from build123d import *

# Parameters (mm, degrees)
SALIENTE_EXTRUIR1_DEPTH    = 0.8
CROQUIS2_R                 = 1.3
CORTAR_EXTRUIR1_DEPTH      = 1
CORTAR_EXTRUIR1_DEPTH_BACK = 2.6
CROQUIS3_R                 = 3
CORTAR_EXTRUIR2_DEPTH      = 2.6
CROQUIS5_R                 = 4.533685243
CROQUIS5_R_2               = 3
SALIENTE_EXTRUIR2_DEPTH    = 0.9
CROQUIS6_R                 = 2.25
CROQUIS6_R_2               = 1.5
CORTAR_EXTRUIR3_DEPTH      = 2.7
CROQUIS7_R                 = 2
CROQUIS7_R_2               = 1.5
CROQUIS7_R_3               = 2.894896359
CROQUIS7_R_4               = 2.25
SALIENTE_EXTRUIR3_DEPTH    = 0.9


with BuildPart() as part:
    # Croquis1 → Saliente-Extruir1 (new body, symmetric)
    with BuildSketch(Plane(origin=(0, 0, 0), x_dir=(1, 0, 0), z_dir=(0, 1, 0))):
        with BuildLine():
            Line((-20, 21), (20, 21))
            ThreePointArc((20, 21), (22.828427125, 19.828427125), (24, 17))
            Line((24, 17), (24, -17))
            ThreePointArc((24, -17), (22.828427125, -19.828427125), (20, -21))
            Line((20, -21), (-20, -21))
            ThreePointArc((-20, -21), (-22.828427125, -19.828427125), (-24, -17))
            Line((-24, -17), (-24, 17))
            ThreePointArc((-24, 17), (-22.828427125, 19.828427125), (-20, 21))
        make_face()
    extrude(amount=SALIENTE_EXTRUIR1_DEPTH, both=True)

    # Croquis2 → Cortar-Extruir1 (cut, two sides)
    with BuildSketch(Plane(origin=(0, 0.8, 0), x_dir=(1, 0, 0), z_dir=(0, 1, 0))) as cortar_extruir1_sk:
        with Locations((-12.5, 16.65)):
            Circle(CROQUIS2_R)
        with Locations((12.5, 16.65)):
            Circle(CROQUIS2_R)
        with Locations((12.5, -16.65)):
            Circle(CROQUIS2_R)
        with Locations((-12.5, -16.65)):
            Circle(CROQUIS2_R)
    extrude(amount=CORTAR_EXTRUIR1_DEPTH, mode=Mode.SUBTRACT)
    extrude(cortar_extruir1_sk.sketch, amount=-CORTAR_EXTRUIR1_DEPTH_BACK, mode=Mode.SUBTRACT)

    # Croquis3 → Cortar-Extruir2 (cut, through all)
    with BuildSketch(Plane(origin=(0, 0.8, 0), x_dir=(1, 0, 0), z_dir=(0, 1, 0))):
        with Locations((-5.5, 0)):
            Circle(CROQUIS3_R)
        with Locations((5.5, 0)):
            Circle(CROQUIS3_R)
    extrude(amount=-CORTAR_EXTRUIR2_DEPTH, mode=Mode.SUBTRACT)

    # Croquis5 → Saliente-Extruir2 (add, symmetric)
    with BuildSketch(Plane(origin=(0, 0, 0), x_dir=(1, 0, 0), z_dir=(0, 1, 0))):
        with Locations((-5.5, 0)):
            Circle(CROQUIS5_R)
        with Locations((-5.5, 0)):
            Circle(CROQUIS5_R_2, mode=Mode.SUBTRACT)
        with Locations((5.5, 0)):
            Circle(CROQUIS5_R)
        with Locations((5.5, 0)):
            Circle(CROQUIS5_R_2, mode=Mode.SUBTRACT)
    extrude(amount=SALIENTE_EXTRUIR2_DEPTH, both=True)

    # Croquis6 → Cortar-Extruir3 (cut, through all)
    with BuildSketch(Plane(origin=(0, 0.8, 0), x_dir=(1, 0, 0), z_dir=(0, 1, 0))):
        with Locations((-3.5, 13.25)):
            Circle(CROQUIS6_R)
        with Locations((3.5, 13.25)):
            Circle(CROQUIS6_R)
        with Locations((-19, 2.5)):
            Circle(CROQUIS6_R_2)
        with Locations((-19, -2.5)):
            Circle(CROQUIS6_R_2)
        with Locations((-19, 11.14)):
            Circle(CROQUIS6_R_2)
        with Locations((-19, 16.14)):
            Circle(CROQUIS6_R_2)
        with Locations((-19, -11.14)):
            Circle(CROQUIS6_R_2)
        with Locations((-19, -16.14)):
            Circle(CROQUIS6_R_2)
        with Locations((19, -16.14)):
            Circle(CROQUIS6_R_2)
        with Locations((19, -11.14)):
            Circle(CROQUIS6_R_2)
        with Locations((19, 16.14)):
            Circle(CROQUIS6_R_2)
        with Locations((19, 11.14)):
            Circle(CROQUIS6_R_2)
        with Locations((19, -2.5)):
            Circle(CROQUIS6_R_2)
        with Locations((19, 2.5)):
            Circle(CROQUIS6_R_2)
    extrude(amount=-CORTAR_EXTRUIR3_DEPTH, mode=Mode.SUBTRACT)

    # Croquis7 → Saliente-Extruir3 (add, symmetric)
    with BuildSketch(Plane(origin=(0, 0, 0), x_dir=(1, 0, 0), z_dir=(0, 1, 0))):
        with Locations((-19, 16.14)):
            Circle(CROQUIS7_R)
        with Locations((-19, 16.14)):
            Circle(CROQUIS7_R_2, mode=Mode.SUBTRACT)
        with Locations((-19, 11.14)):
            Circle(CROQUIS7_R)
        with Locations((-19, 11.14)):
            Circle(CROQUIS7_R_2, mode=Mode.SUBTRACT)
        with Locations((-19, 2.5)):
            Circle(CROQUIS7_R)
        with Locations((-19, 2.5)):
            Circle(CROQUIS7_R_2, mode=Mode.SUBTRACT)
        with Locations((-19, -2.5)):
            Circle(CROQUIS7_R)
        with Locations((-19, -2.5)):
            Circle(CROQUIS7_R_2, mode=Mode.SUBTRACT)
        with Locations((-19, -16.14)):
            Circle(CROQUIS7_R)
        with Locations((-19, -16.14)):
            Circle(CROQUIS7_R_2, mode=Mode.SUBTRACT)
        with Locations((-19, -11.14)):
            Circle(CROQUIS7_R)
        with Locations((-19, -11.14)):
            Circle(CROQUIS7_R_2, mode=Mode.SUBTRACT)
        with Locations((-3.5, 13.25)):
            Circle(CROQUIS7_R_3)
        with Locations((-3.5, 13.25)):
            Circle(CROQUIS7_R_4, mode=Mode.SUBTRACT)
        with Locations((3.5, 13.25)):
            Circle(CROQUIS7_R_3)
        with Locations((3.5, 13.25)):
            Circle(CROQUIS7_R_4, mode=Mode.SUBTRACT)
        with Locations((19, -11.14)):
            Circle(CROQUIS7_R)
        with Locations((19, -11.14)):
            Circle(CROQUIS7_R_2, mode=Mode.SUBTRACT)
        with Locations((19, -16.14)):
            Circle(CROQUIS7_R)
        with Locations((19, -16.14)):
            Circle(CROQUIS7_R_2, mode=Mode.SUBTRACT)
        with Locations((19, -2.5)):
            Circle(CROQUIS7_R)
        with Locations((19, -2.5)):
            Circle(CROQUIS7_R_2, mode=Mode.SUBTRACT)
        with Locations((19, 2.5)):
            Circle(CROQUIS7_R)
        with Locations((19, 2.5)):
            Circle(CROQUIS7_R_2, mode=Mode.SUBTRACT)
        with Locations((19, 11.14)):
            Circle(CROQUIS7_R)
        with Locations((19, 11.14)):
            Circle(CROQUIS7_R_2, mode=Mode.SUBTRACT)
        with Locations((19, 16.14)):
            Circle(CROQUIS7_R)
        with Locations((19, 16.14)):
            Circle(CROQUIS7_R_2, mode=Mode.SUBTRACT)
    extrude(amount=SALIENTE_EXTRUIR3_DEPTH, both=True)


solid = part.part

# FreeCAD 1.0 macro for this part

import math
import FreeCAD as App
import Part
import Sketcher
Q = App.Units.Quantity

doc = App.newDocument("Part")
params = doc.addObject("Spreadsheet::Sheet", "Params")
for row, (alias, value) in enumerate([
    ("sketch1_radius", "4 mm"),
    ("sketch1_width", "40 mm"),
    ("sketch1_height", "34 mm"),
    ("pad1_length", "1.6 mm"),
    ("sketch2_diameter", "2.6 mm"),
    ("sketch3_diameter", "6 mm"),
    ("sketch4_diameter", "6 mm"),
    ("pad2_length", "1.8 mm"),
    ("sketch5_diameter", "3 mm"),
    ("sketch5_diameter2", "4.5 mm"),
    ("sketch6_diameter", "4 mm"),
    ("sketch6_diameter2", "3 mm"),
    ("sketch6_diameter3", "4.5 mm"),
    ("pad3_length", "1.8 mm"),
], start=1):
    params.set(f"A{row}", alias)
    params.set(f"B{row}", "=" + value)
    params.setAlias(f"B{row}", alias)

body = doc.addObject("PartDesign::Body", "Body")

sketch1 = body.newObject("Sketcher::SketchObject", "Sketch")
sketch1.AttachmentSupport = (doc.getObject("XZ_Plane"), [""])
sketch1.MapMode = "FlatFace"
sketch1.addGeometry(Part.LineSegment(App.Vector(20, -21, 0), App.Vector(-20, -21, 0)), False)
sketch1.addGeometry(Part.ArcOfCircle(Part.Circle(App.Vector(-20, -17, 0), App.Vector(0, 0, 1), 4), math.radians(180), math.radians(270)), False)
sketch1.addGeometry(Part.LineSegment(App.Vector(-24, -17, 0), App.Vector(-24, 17, 0)), False)
sketch1.addGeometry(Part.ArcOfCircle(Part.Circle(App.Vector(-20, 17, 0), App.Vector(0, 0, 1), 4), math.radians(90), math.radians(180)), False)
sketch1.addGeometry(Part.LineSegment(App.Vector(-20, 21, 0), App.Vector(20, 21, 0)), False)
sketch1.addGeometry(Part.ArcOfCircle(Part.Circle(App.Vector(20, 17, 0), App.Vector(0, 0, 1), 4), math.radians(0), math.radians(90)), False)
sketch1.addGeometry(Part.LineSegment(App.Vector(24, 17, 0), App.Vector(24, -17, 0)), False)
sketch1.addGeometry(Part.ArcOfCircle(Part.Circle(App.Vector(20, -17, 0), App.Vector(0, 0, 1), 4), math.radians(-90), math.radians(0)), False)
sketch1.addConstraint(Sketcher.Constraint("Tangent", 0, 2, 1, 2))
sketch1.addConstraint(Sketcher.Constraint("Tangent", 1, 1, 2, 1))
sketch1.addConstraint(Sketcher.Constraint("Tangent", 2, 2, 3, 2))
sketch1.addConstraint(Sketcher.Constraint("Tangent", 3, 1, 4, 1))
sketch1.addConstraint(Sketcher.Constraint("Tangent", 4, 2, 5, 2))
sketch1.addConstraint(Sketcher.Constraint("Tangent", 5, 1, 6, 1))
sketch1.addConstraint(Sketcher.Constraint("Tangent", 6, 2, 7, 2))
sketch1.addConstraint(Sketcher.Constraint("Tangent", 7, 1, 0, 1))
sketch1.addConstraint(Sketcher.Constraint("Horizontal", 0))
sketch1.addConstraint(Sketcher.Constraint("Vertical", 2))
sketch1.addConstraint(Sketcher.Constraint("Horizontal", 4))
sketch1.addConstraint(Sketcher.Constraint("Vertical", 6))
sketch1.addConstraint(Sketcher.Constraint("Equal", 1, 3))
sketch1.addConstraint(Sketcher.Constraint("Equal", 3, 5))
sketch1.addConstraint(Sketcher.Constraint("Equal", 5, 7))
sketch1.addConstraint(Sketcher.Constraint("Symmetric", 1, 3, 5, 3, -1, 1))
sketch1.addConstraint(Sketcher.Constraint("Radius", 1, Q("4 mm")))
sketch1.addConstraint(Sketcher.Constraint("DistanceX", 0, 2, 0, 1, Q("40 mm")))
sketch1.addConstraint(Sketcher.Constraint("DistanceY", 2, 1, 2, 2, Q("34 mm")))
sketch1.setExpression("Constraints[16]", "Params.sketch1_radius")
sketch1.setExpression("Constraints[17]", "Params.sketch1_width")
sketch1.setExpression("Constraints[18]", "Params.sketch1_height")
pad1 = body.newObject("PartDesign::Pad", "Pad")
pad1.Profile = sketch1
pad1.setExpression("Length", "Params.pad1_length")
pad1.Midplane = True

sketch2 = body.newObject("Sketcher::SketchObject", "Sketch001")
sketch2.AttachmentSupport = (doc.getObject("XZ_Plane"), [""])
sketch2.MapMode = "FlatFace"
sketch2.AttachmentOffset = App.Placement(App.Vector(0, 0, -0.8), App.Rotation())
sketch2.addGeometry(Part.Circle(App.Vector(-12.5, -16.6, 0), App.Vector(0, 0, 1), 1.3), False)
sketch2.addGeometry(Part.Circle(App.Vector(12.5, -16.6, 0), App.Vector(0, 0, 1), 1.3), False)
sketch2.addGeometry(Part.Circle(App.Vector(12.5, 16.6, 0), App.Vector(0, 0, 1), 1.3), False)
sketch2.addGeometry(Part.Circle(App.Vector(-12.5, 16.6, 0), App.Vector(0, 0, 1), 1.3), False)
sketch2.addConstraint(Sketcher.Constraint("Equal", 0, 1))
sketch2.addConstraint(Sketcher.Constraint("Equal", 1, 2))
sketch2.addConstraint(Sketcher.Constraint("Equal", 2, 3))
sketch2.addConstraint(Sketcher.Constraint("Symmetric", 0, 3, 2, 3, -1, 1))
sketch2.addConstraint(Sketcher.Constraint("Symmetric", 1, 3, 3, 3, -1, 1))
sketch2.addConstraint(Sketcher.Constraint("Symmetric", 0, 3, 1, 3, -2))
sketch2.addConstraint(Sketcher.Constraint("Diameter", 0, Q("2.6 mm")))
sketch2.addConstraint(Sketcher.Constraint("DistanceX", 0, 3, 1, 3, Q("25 mm")))
sketch2.addConstraint(Sketcher.Constraint("DistanceY", 1, 3, 2, 3, Q("33.3 mm")))
sketch2.setExpression("Constraints[6]", "Params.sketch2_diameter")
pocket1 = body.newObject("PartDesign::Pocket", "Pocket")
pocket1.Profile = sketch2
pocket1.Type = "ThroughAll"
pocket1.Midplane = True

sketch3 = body.newObject("Sketcher::SketchObject", "Sketch002")
sketch3.AttachmentSupport = (doc.getObject("XZ_Plane"), [""])
sketch3.MapMode = "FlatFace"
sketch3.AttachmentOffset = App.Placement(App.Vector(0, 0, -0.8), App.Rotation())
sketch3.addGeometry(Part.Circle(App.Vector(-5.5, 0, 0), App.Vector(0, 0, 1), 3), False)
sketch3.addGeometry(Part.Circle(App.Vector(5.5, 0, 0), App.Vector(0, 0, 1), 3), False)
sketch3.addConstraint(Sketcher.Constraint("Equal", 0, 1))
sketch3.addConstraint(Sketcher.Constraint("Symmetric", 0, 3, 1, 3, -1, 1))
sketch3.addConstraint(Sketcher.Constraint("PointOnObject", 0, 3, -1))
sketch3.addConstraint(Sketcher.Constraint("Diameter", 0, Q("6 mm")))
sketch3.addConstraint(Sketcher.Constraint("DistanceX", 0, 3, 1, 3, Q("11 mm")))
sketch3.setExpression("Constraints[3]", "Params.sketch3_diameter")
pocket2 = body.newObject("PartDesign::Pocket", "Pocket001")
pocket2.Profile = sketch3
pocket2.Type = "ThroughAll"
pocket2.Reversed = True

sketch4 = body.newObject("Sketcher::SketchObject", "Sketch003")
sketch4.AttachmentSupport = (doc.getObject("XZ_Plane"), [""])
sketch4.MapMode = "FlatFace"
sketch4.addGeometry(Part.Circle(App.Vector(-5.5, 0, 0), App.Vector(0, 0, 1), 4.5), False)
sketch4.addGeometry(Part.Circle(App.Vector(-5.5, 0, 0), App.Vector(0, 0, 1), 3), False)
sketch4.addGeometry(Part.Circle(App.Vector(5.5, 0, 0), App.Vector(0, 0, 1), 4.5), False)
sketch4.addGeometry(Part.Circle(App.Vector(5.5, 0, 0), App.Vector(0, 0, 1), 3), False)
sketch4.addConstraint(Sketcher.Constraint("Coincident", 1, 3, 0, 3))
sketch4.addConstraint(Sketcher.Constraint("Coincident", 3, 3, 2, 3))
sketch4.addConstraint(Sketcher.Constraint("Equal", 0, 2))
sketch4.addConstraint(Sketcher.Constraint("Equal", 1, 3))
sketch4.addConstraint(Sketcher.Constraint("Symmetric", 0, 3, 2, 3, -1, 1))
sketch4.addConstraint(Sketcher.Constraint("PointOnObject", 0, 3, -1))
sketch4.addConstraint(Sketcher.Constraint("Diameter", 1, Q("6 mm")))
sketch4.addConstraint(Sketcher.Constraint("DistanceX", 0, 3, 2, 3, Q("11 mm")))
sketch4.addConstraint(Sketcher.Constraint("Diameter", 0, Q("9.06737 mm")))
sketch4.setExpression("Constraints[6]", "Params.sketch4_diameter")
pad2 = body.newObject("PartDesign::Pad", "Pad001")
pad2.Profile = sketch4
pad2.setExpression("Length", "Params.pad2_length")
pad2.Midplane = True

sketch5 = body.newObject("Sketcher::SketchObject", "Sketch004")
sketch5.AttachmentSupport = (doc.getObject("XZ_Plane"), [""])
sketch5.MapMode = "FlatFace"
sketch5.AttachmentOffset = App.Placement(App.Vector(0, 0, -0.8), App.Rotation())
sketch5.addGeometry(Part.Circle(App.Vector(-3.5, -13.2, 0), App.Vector(0, 0, 1), 2.2), False)
sketch5.addGeometry(Part.Circle(App.Vector(3.5, -13.2, 0), App.Vector(0, 0, 1), 2.2), False)
sketch5.addGeometry(Part.Circle(App.Vector(-19, -2.5, 0), App.Vector(0, 0, 1), 1.5), False)
sketch5.addGeometry(Part.Circle(App.Vector(-19, 2.5, 0), App.Vector(0, 0, 1), 1.5), False)
sketch5.addGeometry(Part.Circle(App.Vector(-19, -11.1, 0), App.Vector(0, 0, 1), 1.5), False)
sketch5.addGeometry(Part.Circle(App.Vector(-19, -16.1, 0), App.Vector(0, 0, 1), 1.5), False)
sketch5.addGeometry(Part.Circle(App.Vector(-19, 11.1, 0), App.Vector(0, 0, 1), 1.5), False)
sketch5.addGeometry(Part.Circle(App.Vector(-19, 16.1, 0), App.Vector(0, 0, 1), 1.5), False)
sketch5.addGeometry(Part.Circle(App.Vector(19, 16.1, 0), App.Vector(0, 0, 1), 1.5), False)
sketch5.addGeometry(Part.Circle(App.Vector(19, 11.1, 0), App.Vector(0, 0, 1), 1.5), False)
sketch5.addGeometry(Part.Circle(App.Vector(19, -16.1, 0), App.Vector(0, 0, 1), 1.5), False)
sketch5.addGeometry(Part.Circle(App.Vector(19, -11.1, 0), App.Vector(0, 0, 1), 1.5), False)
sketch5.addGeometry(Part.Circle(App.Vector(19, 2.5, 0), App.Vector(0, 0, 1), 1.5), False)
sketch5.addGeometry(Part.Circle(App.Vector(19, -2.5, 0), App.Vector(0, 0, 1), 1.5), False)
sketch5.addConstraint(Sketcher.Constraint("Equal", 0, 1))
sketch5.addConstraint(Sketcher.Constraint("Equal", 2, 3))
sketch5.addConstraint(Sketcher.Constraint("Equal", 3, 4))
sketch5.addConstraint(Sketcher.Constraint("Equal", 4, 5))
sketch5.addConstraint(Sketcher.Constraint("Equal", 5, 6))
sketch5.addConstraint(Sketcher.Constraint("Equal", 6, 7))
sketch5.addConstraint(Sketcher.Constraint("Equal", 7, 8))
sketch5.addConstraint(Sketcher.Constraint("Equal", 8, 9))
sketch5.addConstraint(Sketcher.Constraint("Equal", 9, 10))
sketch5.addConstraint(Sketcher.Constraint("Equal", 10, 11))
sketch5.addConstraint(Sketcher.Constraint("Equal", 11, 12))
sketch5.addConstraint(Sketcher.Constraint("Equal", 12, 13))
sketch5.addConstraint(Sketcher.Constraint("Symmetric", 5, 3, 8, 3, -1, 1))
sketch5.addConstraint(Sketcher.Constraint("Symmetric", 4, 3, 9, 3, -1, 1))
sketch5.addConstraint(Sketcher.Constraint("Symmetric", 7, 3, 10, 3, -1, 1))
sketch5.addConstraint(Sketcher.Constraint("Symmetric", 6, 3, 11, 3, -1, 1))
sketch5.addConstraint(Sketcher.Constraint("Symmetric", 2, 3, 12, 3, -1, 1))
sketch5.addConstraint(Sketcher.Constraint("Symmetric", 3, 3, 13, 3, -1, 1))
sketch5.addConstraint(Sketcher.Constraint("Symmetric", 0, 3, 1, 3, -2))
sketch5.addConstraint(Sketcher.Constraint("Symmetric", 7, 3, 8, 3, -2))
sketch5.addConstraint(Sketcher.Constraint("Symmetric", 6, 3, 9, 3, -2))
sketch5.addConstraint(Sketcher.Constraint("Symmetric", 3, 3, 12, 3, -2))
sketch5.addConstraint(Sketcher.Constraint("Vertical", 3, 3, 4, 3))
sketch5.addConstraint(Sketcher.Constraint("Vertical", 4, 3, 5, 3))
sketch5.addConstraint(Sketcher.Constraint("Diameter", 2, Q("3 mm")))
sketch5.addConstraint(Sketcher.Constraint("Diameter", 0, Q("4.5 mm")))
sketch5.addConstraint(Sketcher.Constraint("DistanceX", 2, 3, -1, 1, Q("19 mm")))
sketch5.addConstraint(Sketcher.Constraint("DistanceX", 0, 3, 1, 3, Q("7 mm")))
sketch5.addConstraint(Sketcher.Constraint("DistanceY", 2, 3, 3, 3, Q("5 mm")))
sketch5.addConstraint(Sketcher.Constraint("DistanceY", 5, 3, 4, 3, Q("5 mm")))
sketch5.addConstraint(Sketcher.Constraint("DistanceY", 0, 3, -1, 1, Q("13.25 mm")))
sketch5.addConstraint(Sketcher.Constraint("DistanceY", 4, 3, -1, 1, Q("11.14 mm")))
sketch5.setExpression("Constraints[24]", "Params.sketch5_diameter")
sketch5.setExpression("Constraints[25]", "Params.sketch5_diameter2")
pocket3 = body.newObject("PartDesign::Pocket", "Pocket002")
pocket3.Profile = sketch5
pocket3.Type = "ThroughAll"
pocket3.Reversed = True

sketch6 = body.newObject("Sketcher::SketchObject", "Sketch005")
sketch6.AttachmentSupport = (doc.getObject("XZ_Plane"), [""])
sketch6.MapMode = "FlatFace"
sketch6.addGeometry(Part.Circle(App.Vector(-19, -16.1, 0), App.Vector(0, 0, 1), 2), False)
sketch6.addGeometry(Part.Circle(App.Vector(-19, -16.1, 0), App.Vector(0, 0, 1), 1.5), False)
sketch6.addGeometry(Part.Circle(App.Vector(-19, -11.1, 0), App.Vector(0, 0, 1), 2), False)
sketch6.addGeometry(Part.Circle(App.Vector(-19, -11.1, 0), App.Vector(0, 0, 1), 1.5), False)
sketch6.addGeometry(Part.Circle(App.Vector(-19, -2.5, 0), App.Vector(0, 0, 1), 2), False)
sketch6.addGeometry(Part.Circle(App.Vector(-19, -2.5, 0), App.Vector(0, 0, 1), 1.5), False)
sketch6.addGeometry(Part.Circle(App.Vector(-19, 2.5, 0), App.Vector(0, 0, 1), 2), False)
sketch6.addGeometry(Part.Circle(App.Vector(-19, 2.5, 0), App.Vector(0, 0, 1), 1.5), False)
sketch6.addGeometry(Part.Circle(App.Vector(-19, 16.1, 0), App.Vector(0, 0, 1), 2), False)
sketch6.addGeometry(Part.Circle(App.Vector(-19, 16.1, 0), App.Vector(0, 0, 1), 1.5), False)
sketch6.addGeometry(Part.Circle(App.Vector(-19, 11.1, 0), App.Vector(0, 0, 1), 2), False)
sketch6.addGeometry(Part.Circle(App.Vector(-19, 11.1, 0), App.Vector(0, 0, 1), 1.5), False)
sketch6.addGeometry(Part.Circle(App.Vector(-3.5, -13.2, 0), App.Vector(0, 0, 1), 2.9), False)
sketch6.addGeometry(Part.Circle(App.Vector(-3.5, -13.2, 0), App.Vector(0, 0, 1), 2.2), False)
sketch6.addGeometry(Part.Circle(App.Vector(3.5, -13.2, 0), App.Vector(0, 0, 1), 2.9), False)
sketch6.addGeometry(Part.Circle(App.Vector(3.5, -13.2, 0), App.Vector(0, 0, 1), 2.2), False)
sketch6.addGeometry(Part.Circle(App.Vector(19, 11.1, 0), App.Vector(0, 0, 1), 2), False)
sketch6.addGeometry(Part.Circle(App.Vector(19, 11.1, 0), App.Vector(0, 0, 1), 1.5), False)
sketch6.addGeometry(Part.Circle(App.Vector(19, 16.1, 0), App.Vector(0, 0, 1), 2), False)
sketch6.addGeometry(Part.Circle(App.Vector(19, 16.1, 0), App.Vector(0, 0, 1), 1.5), False)
sketch6.addGeometry(Part.Circle(App.Vector(19, 2.5, 0), App.Vector(0, 0, 1), 2), False)
sketch6.addGeometry(Part.Circle(App.Vector(19, 2.5, 0), App.Vector(0, 0, 1), 1.5), False)
sketch6.addGeometry(Part.Circle(App.Vector(19, -2.5, 0), App.Vector(0, 0, 1), 2), False)
sketch6.addGeometry(Part.Circle(App.Vector(19, -2.5, 0), App.Vector(0, 0, 1), 1.5), False)
sketch6.addGeometry(Part.Circle(App.Vector(19, -11.1, 0), App.Vector(0, 0, 1), 2), False)
sketch6.addGeometry(Part.Circle(App.Vector(19, -11.1, 0), App.Vector(0, 0, 1), 1.5), False)
sketch6.addGeometry(Part.Circle(App.Vector(19, -16.1, 0), App.Vector(0, 0, 1), 2), False)
sketch6.addGeometry(Part.Circle(App.Vector(19, -16.1, 0), App.Vector(0, 0, 1), 1.5), False)
sketch6.addConstraint(Sketcher.Constraint("Coincident", 1, 3, 0, 3))
sketch6.addConstraint(Sketcher.Constraint("Coincident", 3, 3, 2, 3))
sketch6.addConstraint(Sketcher.Constraint("Coincident", 5, 3, 4, 3))
sketch6.addConstraint(Sketcher.Constraint("Coincident", 7, 3, 6, 3))
sketch6.addConstraint(Sketcher.Constraint("Coincident", 9, 3, 8, 3))
sketch6.addConstraint(Sketcher.Constraint("Coincident", 11, 3, 10, 3))
sketch6.addConstraint(Sketcher.Constraint("Coincident", 13, 3, 12, 3))
sketch6.addConstraint(Sketcher.Constraint("Coincident", 15, 3, 14, 3))
sketch6.addConstraint(Sketcher.Constraint("Coincident", 17, 3, 16, 3))
sketch6.addConstraint(Sketcher.Constraint("Coincident", 19, 3, 18, 3))
sketch6.addConstraint(Sketcher.Constraint("Coincident", 21, 3, 20, 3))
sketch6.addConstraint(Sketcher.Constraint("Coincident", 23, 3, 22, 3))
sketch6.addConstraint(Sketcher.Constraint("Coincident", 25, 3, 24, 3))
sketch6.addConstraint(Sketcher.Constraint("Coincident", 27, 3, 26, 3))
sketch6.addConstraint(Sketcher.Constraint("Equal", 0, 2))
sketch6.addConstraint(Sketcher.Constraint("Equal", 1, 3))
sketch6.addConstraint(Sketcher.Constraint("Equal", 2, 4))
sketch6.addConstraint(Sketcher.Constraint("Equal", 3, 5))
sketch6.addConstraint(Sketcher.Constraint("Equal", 4, 6))
sketch6.addConstraint(Sketcher.Constraint("Equal", 5, 7))
sketch6.addConstraint(Sketcher.Constraint("Equal", 6, 8))
sketch6.addConstraint(Sketcher.Constraint("Equal", 7, 9))
sketch6.addConstraint(Sketcher.Constraint("Equal", 8, 10))
sketch6.addConstraint(Sketcher.Constraint("Equal", 9, 11))
sketch6.addConstraint(Sketcher.Constraint("Equal", 12, 14))
sketch6.addConstraint(Sketcher.Constraint("Equal", 13, 15))
sketch6.addConstraint(Sketcher.Constraint("Equal", 10, 16))
sketch6.addConstraint(Sketcher.Constraint("Equal", 11, 17))
sketch6.addConstraint(Sketcher.Constraint("Equal", 16, 18))
sketch6.addConstraint(Sketcher.Constraint("Equal", 17, 19))
sketch6.addConstraint(Sketcher.Constraint("Equal", 18, 20))
sketch6.addConstraint(Sketcher.Constraint("Equal", 19, 21))
sketch6.addConstraint(Sketcher.Constraint("Equal", 20, 22))
sketch6.addConstraint(Sketcher.Constraint("Equal", 21, 23))
sketch6.addConstraint(Sketcher.Constraint("Equal", 22, 24))
sketch6.addConstraint(Sketcher.Constraint("Equal", 23, 25))
sketch6.addConstraint(Sketcher.Constraint("Equal", 24, 26))
sketch6.addConstraint(Sketcher.Constraint("Equal", 25, 27))
sketch6.addConstraint(Sketcher.Constraint("Symmetric", 2, 3, 16, 3, -1, 1))
sketch6.addConstraint(Sketcher.Constraint("Symmetric", 0, 3, 18, 3, -1, 1))
sketch6.addConstraint(Sketcher.Constraint("Symmetric", 4, 3, 20, 3, -1, 1))
sketch6.addConstraint(Sketcher.Constraint("Symmetric", 6, 3, 22, 3, -1, 1))
sketch6.addConstraint(Sketcher.Constraint("Symmetric", 10, 3, 24, 3, -1, 1))
sketch6.addConstraint(Sketcher.Constraint("Symmetric", 8, 3, 26, 3, -1, 1))
sketch6.addConstraint(Sketcher.Constraint("Symmetric", 12, 3, 14, 3, -2))
sketch6.addConstraint(Sketcher.Constraint("Symmetric", 10, 3, 16, 3, -2))
sketch6.addConstraint(Sketcher.Constraint("Symmetric", 8, 3, 18, 3, -2))
sketch6.addConstraint(Sketcher.Constraint("Symmetric", 6, 3, 20, 3, -2))
sketch6.addConstraint(Sketcher.Constraint("Vertical", 1, 3, 2, 3))
sketch6.addConstraint(Sketcher.Constraint("Vertical", 3, 3, 4, 3))
sketch6.addConstraint(Sketcher.Constraint("Diameter", 0, Q("4 mm")))
sketch6.addConstraint(Sketcher.Constraint("Diameter", 1, Q("3 mm")))
sketch6.addConstraint(Sketcher.Constraint("Diameter", 13, Q("4.5 mm")))
sketch6.addConstraint(Sketcher.Constraint("DistanceX", 0, 3, -1, 1, Q("19 mm")))
sketch6.addConstraint(Sketcher.Constraint("DistanceY", 0, 3, 2, 3, Q("5 mm")))
sketch6.addConstraint(Sketcher.Constraint("DistanceY", 4, 3, 6, 3, Q("5 mm")))
sketch6.addConstraint(Sketcher.Constraint("DistanceX", 12, 3, 14, 3, Q("7 mm")))
sketch6.addConstraint(Sketcher.Constraint("DistanceY", 0, 3, -1, 1, Q("16.14 mm")))
sketch6.addConstraint(Sketcher.Constraint("DistanceY", 12, 3, -1, 1, Q("13.25 mm")))
sketch6.addConstraint(Sketcher.Constraint("Diameter", 12, Q("5.789793 mm")))
sketch6.setExpression("Constraints[50]", "Params.sketch6_diameter")
sketch6.setExpression("Constraints[51]", "Params.sketch6_diameter2")
sketch6.setExpression("Constraints[52]", "Params.sketch6_diameter3")
pad3 = body.newObject("PartDesign::Pad", "Pad002")
pad3.Profile = sketch6
pad3.setExpression("Length", "Params.pad3_length")
pad3.Midplane = True

doc.recompute()
